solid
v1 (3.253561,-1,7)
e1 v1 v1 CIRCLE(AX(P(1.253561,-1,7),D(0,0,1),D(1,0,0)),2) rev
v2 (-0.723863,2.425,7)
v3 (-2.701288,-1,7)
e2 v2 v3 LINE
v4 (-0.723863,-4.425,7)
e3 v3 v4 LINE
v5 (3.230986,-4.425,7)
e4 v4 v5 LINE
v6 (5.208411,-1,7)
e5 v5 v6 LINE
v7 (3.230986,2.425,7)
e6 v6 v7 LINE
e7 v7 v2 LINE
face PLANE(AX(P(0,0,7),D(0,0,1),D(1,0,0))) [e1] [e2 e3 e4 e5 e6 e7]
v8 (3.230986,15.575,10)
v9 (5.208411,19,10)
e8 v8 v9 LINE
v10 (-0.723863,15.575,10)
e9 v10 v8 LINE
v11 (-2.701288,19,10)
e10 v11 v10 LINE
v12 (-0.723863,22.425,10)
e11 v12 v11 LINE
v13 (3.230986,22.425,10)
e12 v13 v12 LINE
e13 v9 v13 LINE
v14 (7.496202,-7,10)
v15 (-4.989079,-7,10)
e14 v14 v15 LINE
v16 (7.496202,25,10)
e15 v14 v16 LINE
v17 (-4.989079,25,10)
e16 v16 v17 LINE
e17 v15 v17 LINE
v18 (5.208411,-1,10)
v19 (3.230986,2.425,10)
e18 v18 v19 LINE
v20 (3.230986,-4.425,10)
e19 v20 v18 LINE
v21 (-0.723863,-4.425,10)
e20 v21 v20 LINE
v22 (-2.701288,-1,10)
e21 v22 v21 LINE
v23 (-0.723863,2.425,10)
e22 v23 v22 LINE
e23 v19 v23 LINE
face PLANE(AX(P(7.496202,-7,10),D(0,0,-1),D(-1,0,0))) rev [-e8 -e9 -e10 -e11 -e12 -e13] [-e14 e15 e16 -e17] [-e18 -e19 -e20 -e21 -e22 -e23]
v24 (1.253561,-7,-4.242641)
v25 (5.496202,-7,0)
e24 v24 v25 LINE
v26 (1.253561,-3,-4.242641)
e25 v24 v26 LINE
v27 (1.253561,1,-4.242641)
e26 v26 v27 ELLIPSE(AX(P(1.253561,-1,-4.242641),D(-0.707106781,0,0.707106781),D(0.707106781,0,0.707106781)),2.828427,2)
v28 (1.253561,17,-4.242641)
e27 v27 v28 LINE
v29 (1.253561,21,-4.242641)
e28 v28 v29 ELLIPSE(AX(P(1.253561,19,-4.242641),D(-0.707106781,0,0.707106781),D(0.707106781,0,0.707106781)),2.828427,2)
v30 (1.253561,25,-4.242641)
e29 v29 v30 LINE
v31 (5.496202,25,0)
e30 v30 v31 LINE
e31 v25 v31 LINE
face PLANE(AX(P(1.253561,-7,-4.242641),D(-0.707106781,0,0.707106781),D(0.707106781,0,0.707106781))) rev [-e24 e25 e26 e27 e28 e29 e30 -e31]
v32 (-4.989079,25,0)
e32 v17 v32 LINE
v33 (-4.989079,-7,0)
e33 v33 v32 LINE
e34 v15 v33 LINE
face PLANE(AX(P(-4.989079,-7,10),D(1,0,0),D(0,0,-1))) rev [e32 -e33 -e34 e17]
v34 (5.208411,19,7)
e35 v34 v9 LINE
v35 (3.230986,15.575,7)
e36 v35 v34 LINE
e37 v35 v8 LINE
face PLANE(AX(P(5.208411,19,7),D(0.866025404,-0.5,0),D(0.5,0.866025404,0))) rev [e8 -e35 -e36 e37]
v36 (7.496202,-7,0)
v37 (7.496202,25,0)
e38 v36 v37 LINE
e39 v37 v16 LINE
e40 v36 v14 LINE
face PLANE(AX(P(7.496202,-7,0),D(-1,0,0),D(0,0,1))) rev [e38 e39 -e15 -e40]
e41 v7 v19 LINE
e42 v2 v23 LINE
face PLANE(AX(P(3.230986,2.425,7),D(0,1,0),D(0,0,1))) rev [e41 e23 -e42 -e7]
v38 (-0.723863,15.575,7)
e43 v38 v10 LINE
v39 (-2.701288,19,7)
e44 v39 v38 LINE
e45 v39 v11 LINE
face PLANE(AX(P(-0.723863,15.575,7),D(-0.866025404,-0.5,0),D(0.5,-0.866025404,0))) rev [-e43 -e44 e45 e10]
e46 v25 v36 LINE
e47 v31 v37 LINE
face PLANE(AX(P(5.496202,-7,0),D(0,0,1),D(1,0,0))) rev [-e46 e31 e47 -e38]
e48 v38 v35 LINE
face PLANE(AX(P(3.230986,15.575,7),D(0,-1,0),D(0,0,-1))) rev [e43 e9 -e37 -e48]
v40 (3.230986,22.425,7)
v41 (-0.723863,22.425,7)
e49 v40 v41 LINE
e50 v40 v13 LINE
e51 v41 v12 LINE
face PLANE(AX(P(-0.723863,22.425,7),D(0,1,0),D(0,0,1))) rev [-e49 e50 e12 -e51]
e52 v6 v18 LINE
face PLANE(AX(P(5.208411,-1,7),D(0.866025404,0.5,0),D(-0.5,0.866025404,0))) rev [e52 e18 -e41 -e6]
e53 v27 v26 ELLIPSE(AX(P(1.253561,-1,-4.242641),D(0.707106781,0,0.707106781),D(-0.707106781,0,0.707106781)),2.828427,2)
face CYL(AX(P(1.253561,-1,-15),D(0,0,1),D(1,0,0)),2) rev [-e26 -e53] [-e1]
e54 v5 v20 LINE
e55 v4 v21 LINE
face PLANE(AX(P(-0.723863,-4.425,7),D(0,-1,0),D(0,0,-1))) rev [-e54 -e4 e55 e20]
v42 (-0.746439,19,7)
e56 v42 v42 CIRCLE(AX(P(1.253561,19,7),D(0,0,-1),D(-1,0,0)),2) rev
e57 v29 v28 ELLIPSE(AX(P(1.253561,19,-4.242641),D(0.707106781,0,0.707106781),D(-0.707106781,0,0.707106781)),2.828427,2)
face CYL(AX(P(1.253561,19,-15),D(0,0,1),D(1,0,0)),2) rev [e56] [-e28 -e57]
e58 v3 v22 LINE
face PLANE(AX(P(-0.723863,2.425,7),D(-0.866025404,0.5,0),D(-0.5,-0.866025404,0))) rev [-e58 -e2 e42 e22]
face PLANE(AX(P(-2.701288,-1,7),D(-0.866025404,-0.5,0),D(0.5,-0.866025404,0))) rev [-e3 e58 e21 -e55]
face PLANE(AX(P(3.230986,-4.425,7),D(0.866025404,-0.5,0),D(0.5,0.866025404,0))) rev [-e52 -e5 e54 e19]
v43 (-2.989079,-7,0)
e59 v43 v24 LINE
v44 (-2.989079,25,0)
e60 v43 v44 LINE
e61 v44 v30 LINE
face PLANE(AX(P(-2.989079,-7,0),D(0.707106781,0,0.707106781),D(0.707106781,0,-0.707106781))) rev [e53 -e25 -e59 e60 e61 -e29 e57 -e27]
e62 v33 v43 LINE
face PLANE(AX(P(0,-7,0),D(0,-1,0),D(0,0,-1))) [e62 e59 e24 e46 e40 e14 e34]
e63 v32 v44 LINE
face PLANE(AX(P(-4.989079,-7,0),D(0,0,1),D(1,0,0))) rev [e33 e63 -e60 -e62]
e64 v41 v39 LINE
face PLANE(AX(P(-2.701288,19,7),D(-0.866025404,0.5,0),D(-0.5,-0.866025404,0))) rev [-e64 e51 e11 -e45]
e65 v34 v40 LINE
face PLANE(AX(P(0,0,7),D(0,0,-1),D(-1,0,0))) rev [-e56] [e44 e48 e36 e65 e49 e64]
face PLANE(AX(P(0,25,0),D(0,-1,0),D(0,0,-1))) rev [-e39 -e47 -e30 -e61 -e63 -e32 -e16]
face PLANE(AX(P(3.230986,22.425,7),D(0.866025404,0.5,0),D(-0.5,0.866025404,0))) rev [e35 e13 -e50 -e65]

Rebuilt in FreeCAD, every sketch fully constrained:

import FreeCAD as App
import Part
import Sketcher

V = App.Vector
Q = App.Units.Quantity

doc = App.newDocument("Part")
body = doc.addObject("PartDesign::Body", "Body")

# Sketch on XZ plane
sketch1 = doc.addObject("Sketcher::SketchObject", "Sketch")
body.addObject(sketch1)
sketch1.AttachmentSupport = (doc.XZ_Plane, [""])
sketch1.MapMode = "FlatFace"
sketch1.addGeometry(Part.LineSegment(V(-3, 0, 0), V(-5, 0, 0)), False)
sketch1.addGeometry(Part.LineSegment(V(-5, 0, 0), V(-5, 10, 0)), False)
sketch1.addGeometry(Part.LineSegment(V(-5, 10, 0), V(7.5, 10, 0)), False)
sketch1.addGeometry(Part.LineSegment(V(7.5, 10, 0), V(7.5, 0, 0)), False)
sketch1.addGeometry(Part.LineSegment(V(7.5, 0, 0), V(5.5, 0, 0)), False)
sketch1.addGeometry(Part.LineSegment(V(5.5, 0, 0), V(1.3, -4.2, 0)), False)
sketch1.addGeometry(Part.LineSegment(V(1.3, -4.2, 0), V(-3, 0, 0)), False)
sketch1.addConstraint(Sketcher.Constraint("Coincident", 0, 2, 1, 1))
sketch1.addConstraint(Sketcher.Constraint("Coincident", 1, 2, 2, 1))
sketch1.addConstraint(Sketcher.Constraint("Coincident", 2, 2, 3, 1))
sketch1.addConstraint(Sketcher.Constraint("Coincident", 3, 2, 4, 1))
sketch1.addConstraint(Sketcher.Constraint("Coincident", 4, 2, 5, 1))
sketch1.addConstraint(Sketcher.Constraint("Coincident", 5, 2, 6, 1))
sketch1.addConstraint(Sketcher.Constraint("Coincident", 6, 2, 0, 1))
sketch1.addConstraint(Sketcher.Constraint("Horizontal", 0))
sketch1.addConstraint(Sketcher.Constraint("Vertical", 1))
sketch1.addConstraint(Sketcher.Constraint("Horizontal", 2))
sketch1.addConstraint(Sketcher.Constraint("Vertical", 3))
sketch1.addConstraint(Sketcher.Constraint("Horizontal", 4))
sketch1.addConstraint(Sketcher.Constraint("PointOnObject", 0, 2, -1))
sketch1.addConstraint(Sketcher.Constraint("PointOnObject", 3, 2, -1))
sketch1.addConstraint(Sketcher.Constraint("Perpendicular", 5, 6))
sketch1.addConstraint(Sketcher.Constraint("Equal", 0, 4))
sketch1.addConstraint(Sketcher.Constraint("Equal", 5, 6))
sketch1.addConstraint(Sketcher.Constraint("DistanceX", 0, 2, 0, 1, 2.0))
sketch1.addConstraint(Sketcher.Constraint("DistanceY", 1, 1, 1, 2, 10.0))
sketch1.addConstraint(Sketcher.Constraint("Distance", 5, 6.0))
sketch1.addConstraint(Sketcher.Constraint("DistanceX", 0, 2, -1, 1, 4.989079))
pad1 = doc.addObject("PartDesign::Pad", "Pad")
body.addObject(pad1)
pad1.Profile = sketch1
pad1.Type = "TwoLengths"
pad1.Length = 25
pad1.Length2 = 7
pad1.Reversed = True

# Sketch on XY plane
sketch2 = doc.addObject("Sketcher::SketchObject", "Sketch001")
body.addObject(sketch2)
sketch2.AttachmentSupport = (doc.XY_Plane, [""])
sketch2.MapMode = "FlatFace"
sketch2.AttachmentOffset = App.Placement(V(0, 0, 10), App.Rotation())
sketch2.addGeometry(Part.Circle(V(1.3, 19, 0), V(0, 0, 1), 2), False)
sketch2.addGeometry(Part.Circle(V(1.3, -1, 0), V(0, 0, 1), 2), False)
sketch2.addConstraint(Sketcher.Constraint("Equal", 0, 1))
sketch2.addConstraint(Sketcher.Constraint("Vertical", 0, 3, 1, 3))
sketch2.addConstraint(Sketcher.Constraint("Diameter", 0, 4.0))
sketch2.addConstraint(Sketcher.Constraint("DistanceY", -1, 1, 0, 3, 19.0))
sketch2.addConstraint(Sketcher.Constraint("DistanceY", 1, 3, -1, 1, 1.0))
sketch2.addConstraint(Sketcher.Constraint("DistanceX", -1, 1, 0, 3, 1.253561))
pocket1 = doc.addObject("PartDesign::Pocket", "Pocket")
body.addObject(pocket1)
pocket1.Profile = sketch2
pocket1.Length = 25

# Sketch on XY plane
sketch3 = doc.addObject("Sketcher::SketchObject", "Sketch002")
body.addObject(sketch3)
sketch3.AttachmentSupport = (doc.XY_Plane, [""])
sketch3.MapMode = "FlatFace"
sketch3.AttachmentOffset = App.Placement(V(0, 0, 10), App.Rotation())
sketch3.addGeometry(Part.LineSegment(V(5.2, -1, 0), V(3.2, 2.4, 0)), False)
sketch3.addGeometry(Part.LineSegment(V(3.2, 2.4, 0), V(-0.7, 2.4, 0)), False)
sketch3.addGeometry(Part.LineSegment(V(-0.7, 2.4, 0), V(-2.7, -1, 0)), False)
sketch3.addGeometry(Part.LineSegment(V(-2.7, -1, 0), V(-0.7, -4.4, 0)), False)
sketch3.addGeometry(Part.LineSegment(V(-0.7, -4.4, 0), V(3.2, -4.4, 0)), False)
sketch3.addGeometry(Part.LineSegment(V(3.2, -4.4, 0), V(5.2, -1, 0)), False)
sketch3.addGeometry(Part.LineSegment(V(5.2, 19, 0), V(3.2, 22.4, 0)), False)
sketch3.addGeometry(Part.LineSegment(V(3.2, 22.4, 0), V(-0.7, 22.4, 0)), False)
sketch3.addGeometry(Part.LineSegment(V(-0.7, 22.4, 0), V(-2.7, 19, 0)), False)
sketch3.addGeometry(Part.LineSegment(V(-2.7, 19, 0), V(-0.7, 15.6, 0)), False)
sketch3.addGeometry(Part.LineSegment(V(-0.7, 15.6, 0), V(3.2, 15.6, 0)), False)
sketch3.addGeometry(Part.LineSegment(V(3.2, 15.6, 0), V(5.2, 19, 0)), False)
sketch3.addConstraint(Sketcher.Constraint("Coincident", 0, 2, 1, 1))
sketch3.addConstraint(Sketcher.Constraint("Coincident", 1, 2, 2, 1))
sketch3.addConstraint(Sketcher.Constraint("Coincident", 2, 2, 3, 1))
sketch3.addConstraint(Sketcher.Constraint("Coincident", 3, 2, 4, 1))
sketch3.addConstraint(Sketcher.Constraint("Coincident", 4, 2, 5, 1))
sketch3.addConstraint(Sketcher.Constraint("Coincident", 5, 2, 0, 1))
sketch3.addConstraint(Sketcher.Constraint("Coincident", 6, 2, 7, 1))
sketch3.addConstraint(Sketcher.Constraint("Coincident", 7, 2, 8, 1))
sketch3.addConstraint(Sketcher.Constraint("Coincident", 8, 2, 9, 1))
sketch3.addConstraint(Sketcher.Constraint("Coincident", 9, 2, 10, 1))
sketch3.addConstraint(Sketcher.Constraint("Coincident", 10, 2, 11, 1))
sketch3.addConstraint(Sketcher.Constraint("Coincident", 11, 2, 6, 1))
sketch3.addConstraint(Sketcher.Constraint("Horizontal", 1))
sketch3.addConstraint(Sketcher.Constraint("Horizontal", 4))
sketch3.addConstraint(Sketcher.Constraint("Horizontal", 7))
sketch3.addConstraint(Sketcher.Constraint("Horizontal", 10))
sketch3.addConstraint(Sketcher.Constraint("Parallel", 0, 3))
sketch3.addConstraint(Sketcher.Constraint("Parallel", 2, 5))
sketch3.addConstraint(Sketcher.Constraint("Parallel", 3, 6))
sketch3.addConstraint(Sketcher.Constraint("Parallel", 5, 8))
sketch3.addConstraint(Sketcher.Constraint("Parallel", 6, 9))
sketch3.addConstraint(Sketcher.Constraint("Parallel", 8, 11))
sketch3.addConstraint(Sketcher.Constraint("Horizontal", 2, 2, 5, 2))
sketch3.addConstraint(Sketcher.Constraint("Horizontal", 8, 2, 11, 2))
sketch3.addConstraint(Sketcher.Constraint("Vertical", 1, 2, 3, 2))
sketch3.addConstraint(Sketcher.Constraint("Vertical", 0, 2, 4, 2))
sketch3.addConstraint(Sketcher.Constraint("Vertical", 4, 2, 6, 2))
sketch3.addConstraint(Sketcher.Constraint("Vertical", 3, 2, 7, 2))
sketch3.addConstraint(Sketcher.Constraint("Vertical", 2, 2, 8, 2))
sketch3.addConstraint(Sketcher.Constraint("Vertical", 7, 2, 9, 2))
sketch3.addConstraint(Sketcher.Constraint("Angle", 0, Q("120 deg")))
sketch3.addConstraint(Sketcher.Constraint("DistanceY", 2, 2, -1, 1, 1.0))
sketch3.addConstraint(Sketcher.Constraint("DistanceY", -1, 1, 8, 2, 19.0))
sketch3.addConstraint(Sketcher.Constraint("DistanceY", 3, 2, 1, 2, 6.85))
sketch3.addConstraint(Sketcher.Constraint("DistanceX", 1, 2, 1, 1, 3.954849))
sketch3.addConstraint(Sketcher.Constraint("DistanceX", -1, 1, 5, 2, 5.208411))
pocket2 = doc.addObject("PartDesign::Pocket", "Pocket001")
body.addObject(pocket2)
pocket2.Profile = sketch3
pocket2.Length = 3

doc.recompute()
